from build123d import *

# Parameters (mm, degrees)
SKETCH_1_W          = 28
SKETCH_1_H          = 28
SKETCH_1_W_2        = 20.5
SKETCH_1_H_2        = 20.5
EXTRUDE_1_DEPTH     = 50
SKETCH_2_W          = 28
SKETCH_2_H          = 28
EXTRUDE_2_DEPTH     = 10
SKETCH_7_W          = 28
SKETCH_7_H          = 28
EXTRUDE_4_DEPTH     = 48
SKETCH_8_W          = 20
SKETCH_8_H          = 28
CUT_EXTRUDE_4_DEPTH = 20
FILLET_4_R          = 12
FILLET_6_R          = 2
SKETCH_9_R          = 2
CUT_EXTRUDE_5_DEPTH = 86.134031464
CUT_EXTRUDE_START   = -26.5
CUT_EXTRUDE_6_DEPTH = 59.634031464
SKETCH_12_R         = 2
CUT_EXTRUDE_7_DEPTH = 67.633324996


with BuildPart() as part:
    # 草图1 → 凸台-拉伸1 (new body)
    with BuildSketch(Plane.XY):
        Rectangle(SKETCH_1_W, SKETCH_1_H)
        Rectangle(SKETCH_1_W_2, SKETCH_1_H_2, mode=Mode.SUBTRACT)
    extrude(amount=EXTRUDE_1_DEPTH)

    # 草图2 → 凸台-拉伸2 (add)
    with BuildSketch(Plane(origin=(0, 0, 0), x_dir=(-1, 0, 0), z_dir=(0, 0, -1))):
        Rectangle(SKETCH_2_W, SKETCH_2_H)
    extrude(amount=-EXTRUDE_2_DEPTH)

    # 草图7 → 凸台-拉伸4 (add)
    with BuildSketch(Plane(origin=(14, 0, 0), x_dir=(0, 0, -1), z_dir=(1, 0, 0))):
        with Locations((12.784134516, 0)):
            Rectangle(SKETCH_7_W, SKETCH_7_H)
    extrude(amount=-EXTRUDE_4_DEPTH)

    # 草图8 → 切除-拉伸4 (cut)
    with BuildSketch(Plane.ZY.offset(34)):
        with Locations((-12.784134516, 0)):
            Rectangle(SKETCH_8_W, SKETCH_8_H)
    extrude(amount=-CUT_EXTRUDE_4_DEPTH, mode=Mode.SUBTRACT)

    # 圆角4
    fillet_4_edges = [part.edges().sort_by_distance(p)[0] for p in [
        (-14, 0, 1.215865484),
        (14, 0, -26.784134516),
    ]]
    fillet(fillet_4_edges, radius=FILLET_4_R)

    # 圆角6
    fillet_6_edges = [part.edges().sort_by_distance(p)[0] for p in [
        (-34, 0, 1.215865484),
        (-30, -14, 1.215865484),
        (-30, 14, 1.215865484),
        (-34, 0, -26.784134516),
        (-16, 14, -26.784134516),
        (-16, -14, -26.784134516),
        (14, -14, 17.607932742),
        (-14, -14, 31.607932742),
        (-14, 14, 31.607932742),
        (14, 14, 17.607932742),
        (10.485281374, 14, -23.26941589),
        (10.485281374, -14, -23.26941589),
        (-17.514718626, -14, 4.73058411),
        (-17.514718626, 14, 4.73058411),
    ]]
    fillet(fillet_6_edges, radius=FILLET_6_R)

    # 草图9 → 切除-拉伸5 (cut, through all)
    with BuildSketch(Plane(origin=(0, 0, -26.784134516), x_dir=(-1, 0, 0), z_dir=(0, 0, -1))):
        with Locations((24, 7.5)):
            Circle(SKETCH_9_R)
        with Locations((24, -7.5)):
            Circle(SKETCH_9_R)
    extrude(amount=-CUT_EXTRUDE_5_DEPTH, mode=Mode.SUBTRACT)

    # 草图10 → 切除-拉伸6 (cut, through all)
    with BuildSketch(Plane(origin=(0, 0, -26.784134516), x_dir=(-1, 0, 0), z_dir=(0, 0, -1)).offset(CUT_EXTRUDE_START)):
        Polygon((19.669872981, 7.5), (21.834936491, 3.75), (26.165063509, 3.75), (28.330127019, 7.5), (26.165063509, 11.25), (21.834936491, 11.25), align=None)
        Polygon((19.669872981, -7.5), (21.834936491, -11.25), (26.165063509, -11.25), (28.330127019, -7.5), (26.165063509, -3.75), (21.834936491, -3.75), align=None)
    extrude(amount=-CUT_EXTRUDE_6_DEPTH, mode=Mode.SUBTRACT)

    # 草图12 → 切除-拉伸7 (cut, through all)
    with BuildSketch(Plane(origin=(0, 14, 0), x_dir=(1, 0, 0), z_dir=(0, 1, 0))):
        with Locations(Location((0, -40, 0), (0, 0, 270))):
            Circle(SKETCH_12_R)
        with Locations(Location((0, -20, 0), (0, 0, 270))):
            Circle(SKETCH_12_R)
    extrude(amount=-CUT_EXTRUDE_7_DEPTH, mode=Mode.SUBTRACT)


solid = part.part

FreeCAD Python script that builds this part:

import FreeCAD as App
import Part
import Sketcher

V = App.Vector
Q = App.Units.Quantity


def edges_at(feature, points):
    """Names of the edges that pass closest to the given points."""
    edges = feature.Shape.Edges
    near = lambda p: min(range(len(edges)), key=lambda i: edges[i].distToShape(Part.Vertex(*p))[0])
    return sorted({f"Edge{near(p) + 1}" for p in points})


def add_polygon(sketch, points):
    """Adds a closed chain of lines whose ends are joined by coincident constraints."""
    first, n = sketch.GeometryCount, len(points)
    for a, b in zip(points, points[1:] + points[:1]):
        sketch.addGeometry(Part.LineSegment(App.Vector(*a, 0), App.Vector(*b, 0)), False)
    for i in range(n):
        sketch.addConstraint(Sketcher.Constraint("Coincident", first + i, 2, first + (i + 1) % n, 1))

doc = App.newDocument("Part")
body = doc.addObject("PartDesign::Body", "Body")

# Sketch on XY plane
sketch1 = body.newObject("Sketcher::SketchObject", "Sketch")
sketch1.AttachmentSupport = (doc.getObject("XY_Plane"), [""])
sketch1.MapMode = "FlatFace"
add_polygon(sketch1, [(-14, 14), (-14, -14), (14, -14), (14, 14)])  # lines 0-3
add_polygon(sketch1, [(10, -10), (-10, -10), (-10, 10), (10, 10)])  # lines 4-7
sketch1.addConstraint(Sketcher.Constraint("Vertical", 0))
sketch1.addConstraint(Sketcher.Constraint("Horizontal", 1))
sketch1.addConstraint(Sketcher.Constraint("Vertical", 2))
sketch1.addConstraint(Sketcher.Constraint("Horizontal", 3))
sketch1.addConstraint(Sketcher.Constraint("Horizontal", 4))
sketch1.addConstraint(Sketcher.Constraint("Vertical", 5))
sketch1.addConstraint(Sketcher.Constraint("Horizontal", 6))
sketch1.addConstraint(Sketcher.Constraint("Vertical", 7))
sketch1.addConstraint(Sketcher.Constraint("Symmetric", 0, 2, 2, 2, -1, 1))
sketch1.addConstraint(Sketcher.Constraint("Symmetric", 4, 2, 6, 2, -1, 1))
sketch1.addConstraint(Sketcher.Constraint("Equal", 3, 0))
sketch1.addConstraint(Sketcher.Constraint("Equal", 6, 5))
sketch1.addConstraint(Sketcher.Constraint("DistanceX", 1, 1, 1, 2, Q("28 mm")))
sketch1.addConstraint(Sketcher.Constraint("DistanceX", 4, 2, 4, 1, Q("20.5 mm")))
pad1 = body.newObject("PartDesign::Pad", "Pad")
pad1.Profile = sketch1
pad1.Length = 50

# Sketch on XY plane
sketch2 = body.newObject("Sketcher::SketchObject", "Sketch001")
sketch2.AttachmentSupport = (doc.getObject("XY_Plane"), [""])
sketch2.MapMode = "FlatFace"
add_polygon(sketch2, [(14, 14), (14, -14), (-14, -14), (-14, 14)])  # lines 0-3
sketch2.addConstraint(Sketcher.Constraint("Vertical", 0))
sketch2.addConstraint(Sketcher.Constraint("Horizontal", 1))
sketch2.addConstraint(Sketcher.Constraint("Vertical", 2))
sketch2.addConstraint(Sketcher.Constraint("Horizontal", 3))
sketch2.addConstraint(Sketcher.Constraint("Symmetric", 0, 2, 2, 2, -1, 1))
sketch2.addConstraint(Sketcher.Constraint("Equal", 3, 0))
sketch2.addConstraint(Sketcher.Constraint("DistanceX", 1, 2, 1, 1, Q("28 mm")))
pad2 = body.newObject("PartDesign::Pad", "Pad001")
pad2.Profile = sketch2
pad2.Length = 10

# Sketch on YZ plane
sketch3 = body.newObject("Sketcher::SketchObject", "Sketch002")
sketch3.AttachmentSupport = (doc.getObject("YZ_Plane"), [""])
sketch3.MapMode = "FlatFace"
sketch3.AttachmentOffset = App.Placement(V(0, 0, 14), App.Rotation())
add_polygon(sketch3, [(14, 1), (-14, 1), (-14, -27), (14, -27)])  # lines 0-3
sketch3.addConstraint(Sketcher.Constraint("Horizontal", 0))
sketch3.addConstraint(Sketcher.Constraint("Vertical", 1))
sketch3.addConstraint(Sketcher.Constraint("Horizontal", 2))
sketch3.addConstraint(Sketcher.Constraint("Vertical", 3))
sketch3.addConstraint(Sketcher.Constraint("Equal", 2, 1))
sketch3.addConstraint(Sketcher.Constraint("DistanceX", 0, 2, 0, 1, Q("28 mm")))
sketch3.addConstraint(Sketcher.Constraint("DistanceX", 0, 2, -1, 1, Q("14 mm")))
sketch3.addConstraint(Sketcher.Constraint("DistanceY", -1, 1, 0, 2, Q("1.215865 mm")))
pad3 = body.newObject("PartDesign::Pad", "Pad002")
pad3.Profile = sketch3
pad3.Length = 48
pad3.Reversed = True

# Sketch on YZ plane
sketch4 = body.newObject("Sketcher::SketchObject", "Sketch003")
sketch4.AttachmentSupport = (doc.getObject("YZ_Plane"), [""])
sketch4.MapMode = "FlatFace"
sketch4.AttachmentOffset = App.Placement(V(0, 0, -34), App.Rotation())
add_polygon(sketch4, [(14, -23), (-14, -23), (-14, -3), (14, -3)])  # lines 0-3
sketch4.addConstraint(Sketcher.Constraint("Horizontal", 0))
sketch4.addConstraint(Sketcher.Constraint("Vertical", 1))
sketch4.addConstraint(Sketcher.Constraint("Horizontal", 2))
sketch4.addConstraint(Sketcher.Constraint("Vertical", 3))
sketch4.addConstraint(Sketcher.Constraint("DistanceX", 0, 2, 0, 1, Q("28 mm")))
sketch4.addConstraint(Sketcher.Constraint("DistanceY", 1, 1, 1, 2, Q("20 mm")))
sketch4.addConstraint(Sketcher.Constraint("DistanceX", 0, 2, -1, 1, Q("14 mm")))
sketch4.addConstraint(Sketcher.Constraint("DistanceY", 0, 2, -1, 1, Q("22.784135 mm")))
pocket1 = body.newObject("PartDesign::Pocket", "Pocket")
pocket1.Profile = sketch4
pocket1.Length = 20
pocket1.Reversed = True
doc.recompute()

fillet = body.newObject("PartDesign::Fillet", "Fillet")
fillet.Base = (pocket1, edges_at(pocket1, [(-14, 0, 1.216), (14, 0, -26.784)]))
fillet.Radius = 12
doc.recompute()

fillet2 = body.newObject("PartDesign::Fillet", "Fillet001")
fillet2.Base = (fillet, edges_at(fillet, [
    (-34, 0, 1.216),
    (-30, -14, 1.216),
    (-30, 14, 1.216),
    (-34, 0, -26.784),
    (-16, 14, -26.784),
    (-16, -14, -26.784),
    (14, -14, 17.608),
    (-14, -14, 31.608),
    (-14, 14, 31.608),
    (14, 14, 17.608),
    (10.485, 14, -23.269),
    (10.485, -14, -23.269),
    (-17.515, -14, 4.731),
    (-17.515, 14, 4.731),
]))
fillet2.Radius = 2

# Sketch on XY plane
sketch5 = body.newObject("Sketcher::SketchObject", "Sketch004")
sketch5.AttachmentSupport = (doc.getObject("XY_Plane"), [""])
sketch5.MapMode = "FlatFace"
sketch5.AttachmentOffset = App.Placement(V(0, 0, -26.784135), App.Rotation())
sketch5.addGeometry(Part.Circle(V(-24, 7.5, 0), V(0, 0, 1), 2), False)
sketch5.addGeometry(Part.Circle(V(-24, -7.5, 0), V(0, 0, 1), 2), False)
sketch5.addConstraint(Sketcher.Constraint("Equal", 0, 1))
sketch5.addConstraint(Sketcher.Constraint("Symmetric", 0, 3, 1, 3, -1))
sketch5.addConstraint(Sketcher.Constraint("Diameter", 0, Q("4 mm")))
sketch5.addConstraint(Sketcher.Constraint("DistanceX", 0, 3, -1, 1, Q("24 mm")))
sketch5.addConstraint(Sketcher.Constraint("DistanceY", 1, 3, 0, 3, Q("15 mm")))
pocket2 = body.newObject("PartDesign::Pocket", "Pocket001")
pocket2.Profile = sketch5
pocket2.Type = "ThroughAll"
pocket2.Reversed = True

# Sketch on XY plane
sketch6 = body.newObject("Sketcher::SketchObject", "Sketch005")
sketch6.AttachmentSupport = (doc.getObject("XY_Plane"), [""])
sketch6.MapMode = "FlatFace"
sketch6.AttachmentOffset = App.Placement(V(0, 0, -0.284135), App.Rotation())
add_polygon(sketch6, [(-19.7, 7.5), (-21.8, 3.8), (-26.2, 3.8), (-28.3, 7.5), (-26.2, 11.2), (-21.8, 11.2)])  # lines 0-5
add_polygon(sketch6, [(-19.7, -7.5), (-21.8, -11.2), (-26.2, -11.2), (-28.3, -7.5), (-26.2, -3.8), (-21.8, -3.8)])  # lines 6-11
sketch6.addConstraint(Sketcher.Constraint("Horizontal", 1))
sketch6.addConstraint(Sketcher.Constraint("Horizontal", 4))
sketch6.addConstraint(Sketcher.Constraint("Horizontal", 7))
sketch6.addConstraint(Sketcher.Constraint("Horizontal", 10))
sketch6.addConstraint(Sketcher.Constraint("Symmetric", 4, 2, 6, 2, -1))
sketch6.addConstraint(Sketcher.Constraint("Symmetric", 2, 2, 8, 2, -1))
sketch6.addConstraint(Sketcher.Constraint("Symmetric", 1, 2, 9, 2, -1))
sketch6.addConstraint(Sketcher.Constraint("Symmetric", 5, 2, 11, 2, -1))
sketch6.addConstraint(Sketcher.Constraint("Parallel", 0, 3))
sketch6.addConstraint(Sketcher.Constraint("Parallel", 2, 5))
sketch6.addConstraint(Sketcher.Constraint("Parallel", 3, 6))
sketch6.addConstraint(Sketcher.Constraint("Parallel", 5, 8))
sketch6.addConstraint(Sketcher.Constraint("Parallel", 8, 11))
sketch6.addConstraint(Sketcher.Constraint("Horizontal", 2, 2, 5, 2))
sketch6.addConstraint(Sketcher.Constraint("Vertical", 1, 2, 3, 2))
sketch6.addConstraint(Sketcher.Constraint("Angle", 0, Q("-120 deg")))
sketch6.addConstraint(Sketcher.Constraint("DistanceY", 6, 2, 0, 2, Q("15 mm")))
sketch6.addConstraint(Sketcher.Constraint("DistanceY", 1, 2, 3, 2, Q("7.5 mm")))
sketch6.addConstraint(Sketcher.Constraint("DistanceX", 1, 2, 1, 1, Q("4.330127 mm")))
sketch6.addConstraint(Sketcher.Constraint("DistanceX", 0, 2, -1, 1, Q("21.834936 mm")))
pocket3 = body.newObject("PartDesign::Pocket", "Pocket002")
pocket3.Profile = sketch6
pocket3.Type = "ThroughAll"
pocket3.Reversed = True

# Sketch on XZ plane
sketch7 = body.newObject("Sketcher::SketchObject", "Sketch006")
sketch7.AttachmentSupport = (doc.getObject("XZ_Plane"), [""])
sketch7.MapMode = "FlatFace"
sketch7.AttachmentOffset = App.Placement(V(0, 0, -14), App.Rotation())
sketch7.addGeometry(Part.Circle(V(0, 40, 0), V(0, 0, 1), 2), False)
sketch7.addGeometry(Part.Circle(V(0, 20, 0), V(0, 0, 1), 2), False)
sketch7.addConstraint(Sketcher.Constraint("Equal", 0, 1))
sketch7.addConstraint(Sketcher.Constraint("PointOnObject", 0, 3, -2))
sketch7.addConstraint(Sketcher.Constraint("PointOnObject", 1, 3, -2))
sketch7.addConstraint(Sketcher.Constraint("Diameter", 0, Q("4 mm")))
sketch7.addConstraint(Sketcher.Constraint("DistanceY", -1, 1, 0, 3, Q("40 mm")))
sketch7.addConstraint(Sketcher.Constraint("DistanceY", -1, 1, 1, 3, Q("20 mm")))
pocket4 = body.newObject("PartDesign::Pocket", "Pocket003")
pocket4.Profile = sketch7
pocket4.Type = "ThroughAll"
pocket4.Reversed = True

doc.recompute()
